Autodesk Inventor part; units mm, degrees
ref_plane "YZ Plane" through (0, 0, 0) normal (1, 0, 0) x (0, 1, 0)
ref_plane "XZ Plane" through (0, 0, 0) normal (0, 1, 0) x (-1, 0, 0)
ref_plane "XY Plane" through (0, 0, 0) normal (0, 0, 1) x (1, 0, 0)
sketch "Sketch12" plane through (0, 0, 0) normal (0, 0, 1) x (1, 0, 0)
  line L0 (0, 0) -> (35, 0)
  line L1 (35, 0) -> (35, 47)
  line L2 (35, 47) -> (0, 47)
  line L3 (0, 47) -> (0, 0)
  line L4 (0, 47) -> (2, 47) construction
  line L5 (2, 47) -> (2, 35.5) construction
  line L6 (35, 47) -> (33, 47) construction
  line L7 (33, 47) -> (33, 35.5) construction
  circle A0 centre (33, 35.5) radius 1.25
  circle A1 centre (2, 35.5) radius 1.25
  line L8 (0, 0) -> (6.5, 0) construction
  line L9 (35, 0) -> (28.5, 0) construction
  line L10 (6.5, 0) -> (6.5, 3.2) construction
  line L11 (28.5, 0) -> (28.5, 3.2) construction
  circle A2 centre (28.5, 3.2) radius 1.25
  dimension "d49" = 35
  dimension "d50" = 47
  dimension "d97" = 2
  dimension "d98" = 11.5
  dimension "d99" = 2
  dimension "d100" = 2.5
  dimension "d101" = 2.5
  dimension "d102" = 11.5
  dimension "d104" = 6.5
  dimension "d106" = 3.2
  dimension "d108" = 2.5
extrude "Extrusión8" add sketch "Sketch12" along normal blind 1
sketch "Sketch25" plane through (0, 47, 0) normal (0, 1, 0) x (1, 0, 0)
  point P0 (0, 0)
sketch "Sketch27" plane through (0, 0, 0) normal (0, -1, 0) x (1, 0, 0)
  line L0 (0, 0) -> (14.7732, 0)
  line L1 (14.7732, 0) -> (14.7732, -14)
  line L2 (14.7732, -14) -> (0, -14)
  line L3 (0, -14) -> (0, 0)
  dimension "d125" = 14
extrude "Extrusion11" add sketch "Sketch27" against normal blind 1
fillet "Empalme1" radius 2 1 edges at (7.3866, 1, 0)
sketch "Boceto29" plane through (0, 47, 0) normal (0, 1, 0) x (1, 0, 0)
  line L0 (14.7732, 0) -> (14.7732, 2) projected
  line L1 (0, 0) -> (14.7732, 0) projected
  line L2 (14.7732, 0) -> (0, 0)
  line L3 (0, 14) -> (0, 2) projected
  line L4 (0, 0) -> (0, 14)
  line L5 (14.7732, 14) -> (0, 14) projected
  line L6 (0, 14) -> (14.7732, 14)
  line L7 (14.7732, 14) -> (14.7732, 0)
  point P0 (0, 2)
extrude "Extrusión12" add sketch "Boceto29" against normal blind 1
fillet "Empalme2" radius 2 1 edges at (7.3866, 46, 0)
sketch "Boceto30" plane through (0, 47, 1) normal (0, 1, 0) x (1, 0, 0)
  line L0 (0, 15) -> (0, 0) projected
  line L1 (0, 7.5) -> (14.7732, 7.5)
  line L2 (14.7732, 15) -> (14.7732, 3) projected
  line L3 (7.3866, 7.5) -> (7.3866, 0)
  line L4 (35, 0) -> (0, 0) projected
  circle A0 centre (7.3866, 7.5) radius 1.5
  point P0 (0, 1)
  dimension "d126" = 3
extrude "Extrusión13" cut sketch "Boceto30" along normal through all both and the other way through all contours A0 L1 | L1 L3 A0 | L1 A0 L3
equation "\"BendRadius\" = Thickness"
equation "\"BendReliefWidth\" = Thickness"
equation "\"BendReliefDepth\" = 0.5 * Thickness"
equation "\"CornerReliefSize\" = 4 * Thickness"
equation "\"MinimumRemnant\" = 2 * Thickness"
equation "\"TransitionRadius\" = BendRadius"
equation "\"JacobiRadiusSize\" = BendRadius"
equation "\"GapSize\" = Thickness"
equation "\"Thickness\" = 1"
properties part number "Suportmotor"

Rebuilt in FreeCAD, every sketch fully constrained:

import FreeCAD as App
import Part
import Sketcher

V = App.Vector


def edges_at(feature, points):
    """Names of the edges that pass closest to the given points."""
    edges = feature.Shape.Edges
    near = lambda p: min(range(len(edges)), key=lambda i: edges[i].distToShape(Part.Vertex(*p))[0])
    return sorted({f"Edge{near(p) + 1}" for p in points})

doc = App.newDocument("Part")
body = doc.addObject("PartDesign::Body", "Body")

# Sketch on XY plane
sketch1 = body.newObject("Sketcher::SketchObject", "Sketch")
sketch1.AttachmentSupport = (doc.getObject("XY_Plane"), [""])
sketch1.MapMode = "FlatFace"
sketch1.addGeometry([
    Part.LineSegment(V(0, 47, 0), V(0, 0, 0)),  # 0
    Part.LineSegment(V(0, 0, 0), V(35, 0, 0)),  # 1
    Part.LineSegment(V(35, 0, 0), V(35, 47, 0)),  # 2
    Part.LineSegment(V(35, 47, 0), V(0, 47, 0)),  # 3
    Part.Circle(V(28.5, 3.2, 0), V(0, 0, 1), 1.2),  # 4
    Part.Circle(V(2, 35.5, 0), V(0, 0, 1), 1.2),  # 5
    Part.Circle(V(33, 35.5, 0), V(0, 0, 1), 1.2),  # 6
], False)
sketch1.addConstraint([
    Sketcher.Constraint("Coincident", 0, 2, 1, 1),
    Sketcher.Constraint("Coincident", 1, 2, 2, 1),
    Sketcher.Constraint("Coincident", 2, 2, 3, 1),
    Sketcher.Constraint("Coincident", 3, 2, 0, 1),
    Sketcher.Constraint("Vertical", 0),
    Sketcher.Constraint("Horizontal", 1),
    Sketcher.Constraint("Vertical", 2),
    Sketcher.Constraint("Horizontal", 3),
    Sketcher.Constraint("Coincident", 0, 2, -1, 1),
    Sketcher.Constraint("Equal", 4, 5),
    Sketcher.Constraint("Equal", 5, 6),
    Sketcher.Constraint("Horizontal", 5, 3, 6, 3),
    Sketcher.Constraint("Diameter", 4, 2.5),
    Sketcher.Constraint("DistanceX", 1, 1, 1, 2, 35.0),
    Sketcher.Constraint("DistanceY", 0, 2, 0, 1, 47.0),
    Sketcher.Constraint("DistanceX", -1, 1, 5, 3, 2.0),
    Sketcher.Constraint("DistanceX", 6, 3, 1, 2, 2.0),
    Sketcher.Constraint("DistanceY", -1, 1, 4, 3, 3.2),
    Sketcher.Constraint("DistanceX", 4, 3, 1, 2, 6.5),
    Sketcher.Constraint("DistanceY", 6, 3, 2, 2, 11.5),
])
pad1 = body.newObject("PartDesign::Pad", "Pad")
pad1.Profile = sketch1
pad1.Length = 1

# Sketch on XZ plane
sketch2 = body.newObject("Sketcher::SketchObject", "Sketch001")
sketch2.AttachmentSupport = (doc.getObject("XZ_Plane"), [""])
sketch2.MapMode = "FlatFace"
sketch2.addGeometry([
    Part.LineSegment(V(15, 0, 0), V(0, 0, 0)),
    Part.LineSegment(V(0, 0, 0), V(0, -14, 0)),
    Part.LineSegment(V(0, -14, 0), V(15, -14, 0)),
    Part.LineSegment(V(15, -14, 0), V(15, 0, 0)),
], False)
sketch2.addConstraint([
    Sketcher.Constraint("Coincident", 0, 2, 1, 1),
    Sketcher.Constraint("Coincident", 1, 2, 2, 1),
    Sketcher.Constraint("Coincident", 2, 2, 3, 1),
    Sketcher.Constraint("Coincident", 3, 2, 0, 1),
    Sketcher.Constraint("Horizontal", 0),
    Sketcher.Constraint("Vertical", 1),
    Sketcher.Constraint("Horizontal", 2),
    Sketcher.Constraint("Vertical", 3),
    Sketcher.Constraint("Coincident", 0, 2, -1, 1),
    Sketcher.Constraint("DistanceY", 1, 2, 1, 1, 14.0),
    Sketcher.Constraint("DistanceX", 0, 2, 0, 1, 14.7732),
])
pad2 = body.newObject("PartDesign::Pad", "Pad001")
pad2.Profile = sketch2
pad2.Length = 1
pad2.Reversed = True
doc.recompute()

fillet = body.newObject("PartDesign::Fillet", "Fillet")
fillet.Base = (pad2, edges_at(pad2, [(7.387, 1, 0)]))
fillet.Radius = 2

# Sketch on XZ plane
sketch3 = body.newObject("Sketcher::SketchObject", "Sketch002")
sketch3.AttachmentSupport = (doc.getObject("XZ_Plane"), [""])
sketch3.MapMode = "FlatFace"
sketch3.AttachmentOffset = App.Placement(V(0, 0, -47), App.Rotation())
sketch3.addGeometry([
    Part.LineSegment(V(0, 0, 0), V(15, 0, 0)),
    Part.LineSegment(V(15, 0, 0), V(15, -14, 0)),
    Part.LineSegment(V(15, -14, 0), V(0, -14, 0)),
    Part.LineSegment(V(0, -14, 0), V(0, 0, 0)),
], False)
sketch3.addConstraint([
    Sketcher.Constraint("Coincident", 0, 2, 1, 1),
    Sketcher.Constraint("Coincident", 1, 2, 2, 1),
    Sketcher.Constraint("Coincident", 2, 2, 3, 1),
    Sketcher.Constraint("Coincident", 3, 2, 0, 1),
    Sketcher.Constraint("Horizontal", 0),
    Sketcher.Constraint("Vertical", 1),
    Sketcher.Constraint("Horizontal", 2),
    Sketcher.Constraint("Vertical", 3),
    Sketcher.Constraint("Coincident", 3, 2, -1, 1),
    Sketcher.Constraint("DistanceY", 1, 2, 1, 1, 14.0),
    Sketcher.Constraint("DistanceX", 0, 1, 0, 2, 14.7732),
])
pad3 = body.newObject("PartDesign::Pad", "Pad002")
pad3.Profile = sketch3
pad3.Length = 1
doc.recompute()

fillet2 = body.newObject("PartDesign::Fillet", "Fillet001")
fillet2.Base = (pad3, edges_at(pad3, [(7.387, 46, 0)]))
fillet2.Radius = 2

# Sketch on XZ plane
sketch4 = body.newObject("Sketcher::SketchObject", "Sketch003")
sketch4.AttachmentSupport = (doc.getObject("XZ_Plane"), [""])
sketch4.MapMode = "FlatFace"
sketch4.AttachmentOffset = App.Placement(V(0, 0, -47), App.Rotation())
sketch4.addGeometry(Part.Circle(V(7.4, -6.5, 0), V(0, 0, 1), 1.5), False)
sketch4.addConstraint([
    Sketcher.Constraint("Diameter", 0, 3.0),
    Sketcher.Constraint("DistanceY", 0, 3, -1, 1, 6.5),
    Sketcher.Constraint("DistanceX", -1, 1, 0, 3, 7.3866),
])
pocket1 = body.newObject("PartDesign::Pocket", "Pocket")
pocket1.Profile = sketch4
pocket1.Type = "ThroughAll"
pocket1.Midplane = True

doc.recompute()
